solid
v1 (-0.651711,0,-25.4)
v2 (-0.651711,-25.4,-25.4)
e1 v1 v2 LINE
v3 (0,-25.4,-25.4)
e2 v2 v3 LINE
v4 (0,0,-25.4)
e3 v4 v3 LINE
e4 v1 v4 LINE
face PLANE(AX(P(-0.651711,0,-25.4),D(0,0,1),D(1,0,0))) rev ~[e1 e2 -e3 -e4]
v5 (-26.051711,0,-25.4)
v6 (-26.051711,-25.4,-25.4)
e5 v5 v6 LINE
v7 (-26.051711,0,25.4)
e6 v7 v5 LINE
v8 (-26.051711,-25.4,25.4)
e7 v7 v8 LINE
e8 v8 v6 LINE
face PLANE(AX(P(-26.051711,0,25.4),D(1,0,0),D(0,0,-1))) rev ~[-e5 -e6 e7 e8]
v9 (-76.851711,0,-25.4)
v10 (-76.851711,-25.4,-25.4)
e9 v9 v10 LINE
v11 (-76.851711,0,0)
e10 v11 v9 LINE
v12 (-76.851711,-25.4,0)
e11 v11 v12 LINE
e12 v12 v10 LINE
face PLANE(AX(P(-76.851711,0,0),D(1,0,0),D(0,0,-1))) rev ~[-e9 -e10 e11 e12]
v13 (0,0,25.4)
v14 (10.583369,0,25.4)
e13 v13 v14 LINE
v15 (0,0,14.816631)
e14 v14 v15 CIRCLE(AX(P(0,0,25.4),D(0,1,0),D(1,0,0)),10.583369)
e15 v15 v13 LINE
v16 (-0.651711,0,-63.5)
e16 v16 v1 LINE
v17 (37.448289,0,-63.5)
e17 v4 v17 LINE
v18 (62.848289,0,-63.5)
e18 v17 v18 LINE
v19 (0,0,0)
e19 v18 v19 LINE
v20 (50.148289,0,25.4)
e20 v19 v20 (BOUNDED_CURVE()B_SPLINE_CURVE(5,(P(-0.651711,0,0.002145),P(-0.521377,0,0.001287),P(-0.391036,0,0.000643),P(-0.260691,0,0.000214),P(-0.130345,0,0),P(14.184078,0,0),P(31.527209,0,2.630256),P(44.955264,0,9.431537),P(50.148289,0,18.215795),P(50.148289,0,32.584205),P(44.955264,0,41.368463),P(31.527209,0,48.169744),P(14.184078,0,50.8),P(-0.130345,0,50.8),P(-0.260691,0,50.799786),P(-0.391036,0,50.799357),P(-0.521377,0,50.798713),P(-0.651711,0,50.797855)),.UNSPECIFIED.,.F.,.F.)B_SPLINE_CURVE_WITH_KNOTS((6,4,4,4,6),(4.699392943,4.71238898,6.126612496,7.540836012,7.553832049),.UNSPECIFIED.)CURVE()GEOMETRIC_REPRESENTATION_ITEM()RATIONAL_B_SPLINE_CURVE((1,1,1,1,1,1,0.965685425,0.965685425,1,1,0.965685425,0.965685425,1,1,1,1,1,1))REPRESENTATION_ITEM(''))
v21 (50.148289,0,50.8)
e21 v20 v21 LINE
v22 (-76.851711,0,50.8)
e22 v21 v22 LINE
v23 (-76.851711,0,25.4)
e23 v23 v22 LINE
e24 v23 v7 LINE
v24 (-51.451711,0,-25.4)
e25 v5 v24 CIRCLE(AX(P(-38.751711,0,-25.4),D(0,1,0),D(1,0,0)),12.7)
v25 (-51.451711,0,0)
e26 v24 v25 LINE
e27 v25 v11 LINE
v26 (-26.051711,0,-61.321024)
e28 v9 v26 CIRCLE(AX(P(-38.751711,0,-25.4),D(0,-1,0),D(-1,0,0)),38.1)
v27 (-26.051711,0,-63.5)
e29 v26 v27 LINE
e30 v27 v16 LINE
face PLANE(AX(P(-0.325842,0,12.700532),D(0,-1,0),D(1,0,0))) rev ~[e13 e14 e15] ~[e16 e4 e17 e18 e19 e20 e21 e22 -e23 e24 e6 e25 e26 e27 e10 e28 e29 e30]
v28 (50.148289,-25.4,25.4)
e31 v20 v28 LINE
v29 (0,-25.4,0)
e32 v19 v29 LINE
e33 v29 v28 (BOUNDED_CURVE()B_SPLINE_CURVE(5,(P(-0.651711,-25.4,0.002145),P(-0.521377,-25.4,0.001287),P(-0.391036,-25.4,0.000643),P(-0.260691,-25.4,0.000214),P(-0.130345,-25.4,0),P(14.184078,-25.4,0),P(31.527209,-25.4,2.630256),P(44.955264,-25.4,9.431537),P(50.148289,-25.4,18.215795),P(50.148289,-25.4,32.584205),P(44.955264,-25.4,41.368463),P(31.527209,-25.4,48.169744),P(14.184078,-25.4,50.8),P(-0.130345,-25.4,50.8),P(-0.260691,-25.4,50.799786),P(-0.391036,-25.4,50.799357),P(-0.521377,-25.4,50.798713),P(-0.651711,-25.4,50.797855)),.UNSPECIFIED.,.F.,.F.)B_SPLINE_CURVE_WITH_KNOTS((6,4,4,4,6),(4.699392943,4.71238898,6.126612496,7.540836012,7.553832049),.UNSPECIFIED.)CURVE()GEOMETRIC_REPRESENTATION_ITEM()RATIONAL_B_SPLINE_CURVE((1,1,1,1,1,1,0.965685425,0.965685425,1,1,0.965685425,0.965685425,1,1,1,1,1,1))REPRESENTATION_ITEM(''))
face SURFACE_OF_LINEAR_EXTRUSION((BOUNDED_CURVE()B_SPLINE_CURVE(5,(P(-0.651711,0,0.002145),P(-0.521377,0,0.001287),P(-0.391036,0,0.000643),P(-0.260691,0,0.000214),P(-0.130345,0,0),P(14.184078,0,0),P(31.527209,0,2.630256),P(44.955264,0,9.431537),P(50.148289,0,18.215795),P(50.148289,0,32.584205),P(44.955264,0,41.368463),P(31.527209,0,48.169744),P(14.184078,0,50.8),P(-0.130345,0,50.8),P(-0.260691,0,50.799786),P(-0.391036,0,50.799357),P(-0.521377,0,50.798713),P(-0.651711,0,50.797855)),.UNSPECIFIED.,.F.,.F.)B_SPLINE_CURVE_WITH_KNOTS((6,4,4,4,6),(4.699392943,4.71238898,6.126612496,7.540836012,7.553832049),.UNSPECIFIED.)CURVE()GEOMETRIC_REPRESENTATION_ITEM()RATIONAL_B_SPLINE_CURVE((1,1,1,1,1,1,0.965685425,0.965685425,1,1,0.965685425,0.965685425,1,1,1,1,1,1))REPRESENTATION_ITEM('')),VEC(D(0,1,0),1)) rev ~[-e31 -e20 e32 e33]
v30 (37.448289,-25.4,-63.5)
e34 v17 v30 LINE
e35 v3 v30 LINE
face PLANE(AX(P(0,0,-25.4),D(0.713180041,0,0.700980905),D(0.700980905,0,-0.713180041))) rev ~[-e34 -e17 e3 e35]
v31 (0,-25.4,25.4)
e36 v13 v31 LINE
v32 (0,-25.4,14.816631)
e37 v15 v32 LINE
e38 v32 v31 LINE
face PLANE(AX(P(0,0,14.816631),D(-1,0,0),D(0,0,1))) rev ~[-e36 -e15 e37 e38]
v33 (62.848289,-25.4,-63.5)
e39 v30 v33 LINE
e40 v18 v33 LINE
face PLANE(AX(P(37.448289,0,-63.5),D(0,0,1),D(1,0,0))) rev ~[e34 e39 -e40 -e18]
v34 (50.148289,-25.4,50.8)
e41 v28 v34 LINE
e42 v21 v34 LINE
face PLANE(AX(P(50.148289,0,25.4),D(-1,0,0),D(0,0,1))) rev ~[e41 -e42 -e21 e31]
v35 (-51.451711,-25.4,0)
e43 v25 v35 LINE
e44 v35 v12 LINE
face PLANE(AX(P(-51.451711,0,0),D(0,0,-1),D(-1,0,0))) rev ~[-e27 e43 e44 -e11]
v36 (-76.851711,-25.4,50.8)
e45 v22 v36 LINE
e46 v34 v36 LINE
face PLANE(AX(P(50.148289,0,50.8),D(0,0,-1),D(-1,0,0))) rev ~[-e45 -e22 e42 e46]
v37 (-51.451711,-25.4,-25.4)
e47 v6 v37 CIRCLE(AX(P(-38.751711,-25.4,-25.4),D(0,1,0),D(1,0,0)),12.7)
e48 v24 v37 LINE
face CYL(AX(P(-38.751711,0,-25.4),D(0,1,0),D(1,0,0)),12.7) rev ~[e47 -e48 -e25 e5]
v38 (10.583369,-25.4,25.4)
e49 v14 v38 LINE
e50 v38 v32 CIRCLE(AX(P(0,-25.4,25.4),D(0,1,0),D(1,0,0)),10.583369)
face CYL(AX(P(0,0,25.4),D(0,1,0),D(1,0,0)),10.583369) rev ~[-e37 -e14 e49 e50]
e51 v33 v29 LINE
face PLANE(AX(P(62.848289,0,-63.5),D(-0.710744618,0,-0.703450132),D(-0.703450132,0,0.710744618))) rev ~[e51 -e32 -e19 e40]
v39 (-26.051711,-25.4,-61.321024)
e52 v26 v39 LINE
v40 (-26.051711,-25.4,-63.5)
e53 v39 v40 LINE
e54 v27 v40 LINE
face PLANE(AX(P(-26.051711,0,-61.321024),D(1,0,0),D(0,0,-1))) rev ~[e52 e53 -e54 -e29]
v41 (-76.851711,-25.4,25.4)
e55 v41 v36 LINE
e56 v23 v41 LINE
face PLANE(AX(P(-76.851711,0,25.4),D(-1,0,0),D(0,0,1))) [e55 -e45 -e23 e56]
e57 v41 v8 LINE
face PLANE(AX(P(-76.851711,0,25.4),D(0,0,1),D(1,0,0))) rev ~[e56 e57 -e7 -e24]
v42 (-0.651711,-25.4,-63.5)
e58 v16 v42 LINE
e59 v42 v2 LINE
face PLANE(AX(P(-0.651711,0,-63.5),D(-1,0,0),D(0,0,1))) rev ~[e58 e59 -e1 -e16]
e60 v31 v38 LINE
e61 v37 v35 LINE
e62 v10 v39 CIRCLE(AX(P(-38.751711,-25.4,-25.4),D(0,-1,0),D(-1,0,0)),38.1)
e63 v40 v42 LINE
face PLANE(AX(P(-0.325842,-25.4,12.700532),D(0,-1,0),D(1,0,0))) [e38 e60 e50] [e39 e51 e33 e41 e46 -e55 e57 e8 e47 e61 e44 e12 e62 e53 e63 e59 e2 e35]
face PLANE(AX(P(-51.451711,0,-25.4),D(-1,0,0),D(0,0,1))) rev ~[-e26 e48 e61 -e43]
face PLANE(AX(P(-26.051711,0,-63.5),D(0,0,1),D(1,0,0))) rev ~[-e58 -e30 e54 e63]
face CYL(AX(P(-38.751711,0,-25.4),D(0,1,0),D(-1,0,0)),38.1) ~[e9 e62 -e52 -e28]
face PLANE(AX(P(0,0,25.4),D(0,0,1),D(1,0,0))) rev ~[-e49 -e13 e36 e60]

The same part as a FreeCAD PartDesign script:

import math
import FreeCAD as App
import Part
import Sketcher

V = App.Vector
Q = App.Units.Quantity

doc = App.newDocument("Part")
params = doc.addObject("Spreadsheet::Sheet", "Params")
for row, (alias, value) in enumerate([
    ("sketch1_width", "5 in"),
    ("sketch1_height", "1.5 in"),
    ("pad1_length", "1 in"),
], start=1):
    params.set(f"A{row}", alias)
    params.set(f"B{row}", "=" + value)
    params.setAlias(f"B{row}", alias)

body = doc.addObject("PartDesign::Body", "Body")

# Sketch on XZ plane
sketch1 = body.newObject("Sketcher::SketchObject", "Sketch")
sketch1.AttachmentSupport = (doc.getObject("XZ_Plane"), [""])
sketch1.MapMode = "FlatFace"
sketch1.addGeometry([
    Part.BSplineCurve([V(0, 0, 0), V(14.184078, 0, 0), V(31.527209, 2.630256, 0), V(44.955264, 9.431537, 0), V(50.148289, 18.215795, 0), V(50.148289, 25.4, 0)], [6, 6], [4.71238898, 6.126612496], False, 5, [1, 1, 0.965685425, 0.965685425, 1, 1], False),  # 0
    Part.LineSegment(V(50.148289, 25.4, 0), V(50.148289, 50.8, 0)),  # 1
    Part.LineSegment(V(50.148289, 50.8, 0), V(-76.851711, 50.8, 0)),  # 2
    Part.LineSegment(V(-76.851711, 50.8, 0), V(-76.851711, 25.4, 0)),  # 3
    Part.LineSegment(V(-76.851711, 25.4, 0), V(-26.051711, 25.4, 0)),  # 4
    Part.LineSegment(V(-26.051711, 25.4, 0), V(-26.051711, -25.4, 0)),  # 5
    Part.ArcOfCircle(Part.Circle(V(-38.751711, -25.4, 0), V(0, 0, 1), 12.7), math.radians(180), math.radians(360)),  # 6
    Part.LineSegment(V(-51.451711, -25.4, 0), V(-51.451711, 0, 0)),  # 7
    Part.LineSegment(V(-51.451711, 0, 0), V(-76.851711, 0, 0)),  # 8
    Part.LineSegment(V(-76.851711, 0, 0), V(-76.851711, -25.4, 0)),  # 9
    Part.ArcOfCircle(Part.Circle(V(-38.751711, -25.4, 0), V(0, 0, 1), 38.1), math.radians(180), math.radians(289.471221)),  # 10
    Part.LineSegment(V(-26.051711, -61.321024, 0), V(-26.051711, -63.5, 0)),  # 11
    Part.LineSegment(V(-26.051711, -63.5, 0), V(-0.651711, -63.5, 0)),  # 12
    Part.LineSegment(V(-0.651711, -63.5, 0), V(-0.651711, -25.4, 0)),  # 13
    Part.LineSegment(V(-0.651711, -25.4, 0), V(0, -25.4, 0)),  # 14
    Part.LineSegment(V(0, -25.4, 0), V(37.448289, -63.5, 0)),  # 15
    Part.LineSegment(V(37.448289, -63.5, 0), V(62.848289, -63.5, 0)),  # 16
    Part.LineSegment(V(62.848289, -63.5, 0), V(0, 0, 0)),  # 17
    Part.LineSegment(V(0, 14.816631, 0), V(0, 25.4, 0)),  # 18
    Part.LineSegment(V(0, 25.4, 0), V(10.583369, 25.4, 0)),  # 19
    Part.ArcOfCircle(Part.Circle(V(0, 25.4, 0), V(0, 0, 1), 10.583369), math.radians(-90), math.radians(0)),  # 20
], False)
sketch1.addConstraint([
    Sketcher.Constraint("Block", 0),
    Sketcher.Constraint("Coincident", 0, 2, 1, 1),
    Sketcher.Constraint("Coincident", 1, 2, 2, 1),
    Sketcher.Constraint("Coincident", 2, 2, 3, 1),
    Sketcher.Constraint("Coincident", 3, 2, 4, 1),
    Sketcher.Constraint("Coincident", 4, 2, 5, 1),
    Sketcher.Constraint("Tangent", 5, 2, 6, 2),
    Sketcher.Constraint("Tangent", 6, 1, 7, 1),
    Sketcher.Constraint("Coincident", 7, 2, 8, 1),
    Sketcher.Constraint("Coincident", 8, 2, 9, 1),
    Sketcher.Constraint("Tangent", 9, 2, 10, 1),
    Sketcher.Constraint("Coincident", 10, 2, 11, 1),
    Sketcher.Constraint("Coincident", 11, 2, 12, 1),
    Sketcher.Constraint("Coincident", 12, 2, 13, 1),
    Sketcher.Constraint("Coincident", 13, 2, 14, 1),
    Sketcher.Constraint("Coincident", 14, 2, 15, 1),
    Sketcher.Constraint("Coincident", 15, 2, 16, 1),
    Sketcher.Constraint("Coincident", 16, 2, 17, 1),
    Sketcher.Constraint("Coincident", 17, 2, 0, 1),
    Sketcher.Constraint("Coincident", 18, 2, 19, 1),
    Sketcher.Constraint("Coincident", 19, 2, 20, 2),
    Sketcher.Constraint("Coincident", 20, 1, 18, 1),
    Sketcher.Constraint("Vertical", 1),
    Sketcher.Constraint("Horizontal", 2),
    Sketcher.Constraint("Vertical", 3),
    Sketcher.Constraint("Horizontal", 4),
    Sketcher.Constraint("Vertical", 5),
    Sketcher.Constraint("Vertical", 7),
    Sketcher.Constraint("Horizontal", 8),
    Sketcher.Constraint("Vertical", 9),
    Sketcher.Constraint("Vertical", 11),
    Sketcher.Constraint("Horizontal", 12),
    Sketcher.Constraint("Vertical", 13),
    Sketcher.Constraint("Horizontal", 14),
    Sketcher.Constraint("Horizontal", 16),
    Sketcher.Constraint("Vertical", 18),
    Sketcher.Constraint("Horizontal", 19),
    Sketcher.Constraint("Coincident", 10, 3, 6, 3),
    Sketcher.Constraint("Coincident", 18, 2, 20, 3),
    Sketcher.Constraint("Symmetric", 14, 2, 18, 2, -1, 1),
    Sketcher.Constraint("Symmetric", 3, 2, 9, 2, -1),
    Sketcher.Constraint("PointOnObject", 20, 3, -2),
    Sketcher.Constraint("PointOnObject", 7, 2, -1),
    Sketcher.Constraint("Horizontal", 20, 3, 3, 2),
    Sketcher.Constraint("Horizontal", 12, 2, 15, 2),
    Sketcher.Constraint("Vertical", 5, 2, 10, 2),
    Sketcher.Constraint("Equal", 8, 12),
    Sketcher.Constraint("Equal", 12, 16),
    Sketcher.Constraint("Equal", 16, 1),
    Sketcher.Constraint("Equal", 1, 3),
    Sketcher.Constraint("Equal", 4, 5),
    Sketcher.Constraint("Equal", 3, 7),
    Sketcher.Constraint("DistanceX", 2, 2, 2, 1, Q("5 in")),
    Sketcher.Constraint("DistanceY", 13, 1, 13, 2, Q("1.5 in")),
    Sketcher.Constraint("DistanceX", 12, 2, 15, 2, Q("1.5 in")),
    Sketcher.Constraint("Radius", 20, 10.583369),
])
sketch1.setExpression("Constraints[52]", "Params.sketch1_width")
sketch1.setExpression("Constraints[53]", "Params.sketch1_height")
pad1 = body.newObject("PartDesign::Pad", "Pad")
pad1.Profile = sketch1
pad1.setExpression("Length", "Params.pad1_length")

doc.recompute()
